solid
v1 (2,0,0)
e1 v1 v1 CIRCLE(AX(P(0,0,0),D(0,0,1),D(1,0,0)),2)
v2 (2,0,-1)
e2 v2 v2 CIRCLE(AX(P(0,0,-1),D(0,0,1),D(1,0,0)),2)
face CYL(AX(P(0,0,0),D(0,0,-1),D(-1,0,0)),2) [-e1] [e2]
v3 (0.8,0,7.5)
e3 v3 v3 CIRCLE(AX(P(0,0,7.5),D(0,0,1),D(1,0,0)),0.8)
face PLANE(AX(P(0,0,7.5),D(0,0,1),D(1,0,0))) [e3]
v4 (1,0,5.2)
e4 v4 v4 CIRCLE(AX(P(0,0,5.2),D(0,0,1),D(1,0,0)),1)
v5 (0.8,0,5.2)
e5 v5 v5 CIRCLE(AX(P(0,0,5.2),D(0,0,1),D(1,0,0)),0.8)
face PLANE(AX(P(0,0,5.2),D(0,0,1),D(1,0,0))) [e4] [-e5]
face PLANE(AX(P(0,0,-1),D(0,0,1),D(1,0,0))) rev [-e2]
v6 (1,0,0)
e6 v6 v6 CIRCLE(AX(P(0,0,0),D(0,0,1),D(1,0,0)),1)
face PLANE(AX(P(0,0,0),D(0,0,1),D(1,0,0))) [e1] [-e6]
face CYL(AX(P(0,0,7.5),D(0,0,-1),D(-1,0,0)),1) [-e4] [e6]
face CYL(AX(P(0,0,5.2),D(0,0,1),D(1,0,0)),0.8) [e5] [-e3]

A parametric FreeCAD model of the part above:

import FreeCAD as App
import Part
import Sketcher

V = App.Vector

doc = App.newDocument("Part")
body = doc.addObject("PartDesign::Body", "Body")

sketch1 = doc.addObject("Sketcher::SketchObject", "Sketch")
body.addObject(sketch1)
sketch1.AttachmentSupport = (doc.XY_Plane, [""])
sketch1.MapMode = "FlatFace"
sketch1.AttachmentOffset = App.Placement(V(0, 0, -1), App.Rotation())
sketch1.addGeometry(Part.Circle(V(0, 0, 0), V(0, 0, 1), 2), False)
sketch1.addConstraint(Sketcher.Constraint("Coincident", 0, 3, -1, 1))
sketch1.addConstraint(Sketcher.Constraint("Diameter", 0, 4.0))
pad1 = doc.addObject("PartDesign::Pad", "Pad")
body.addObject(pad1)
pad1.Profile = sketch1
pad1.Length = 1

sketch2 = doc.addObject("Sketcher::SketchObject", "Sketch001")
body.addObject(sketch2)
sketch2.AttachmentSupport = (doc.XY_Plane, [""])
sketch2.MapMode = "FlatFace"
sketch2.addGeometry(Part.Circle(V(0, 0, 0), V(0, 0, 1), 1), False)
sketch2.addConstraint(Sketcher.Constraint("Coincident", 0, 3, -1, 1))
sketch2.addConstraint(Sketcher.Constraint("Diameter", 0, 2.0))
pad2 = doc.addObject("PartDesign::Pad", "Pad001")
body.addObject(pad2)
pad2.Profile = sketch2
pad2.Length = 7.5

sketch3 = doc.addObject("Sketcher::SketchObject", "Sketch002")
body.addObject(sketch3)
sketch3.AttachmentSupport = (doc.XY_Plane, [""])
sketch3.MapMode = "FlatFace"
sketch3.AttachmentOffset = App.Placement(V(0, 0, 7.5), App.Rotation())
sketch3.addGeometry(Part.Circle(V(0, 0, 0), V(0, 0, 1), 1), False)
sketch3.addGeometry(Part.Circle(V(0, 0, 0), V(0, 0, 1), 0.8), False)
sketch3.addConstraint(Sketcher.Constraint("Coincident", 0, 3, -1, 1))
sketch3.addConstraint(Sketcher.Constraint("Coincident", 1, 3, -1, 1))
sketch3.addConstraint(Sketcher.Constraint("Diameter", 1, 1.6))
sketch3.addConstraint(Sketcher.Constraint("Diameter", 0, 2.02))
pocket1 = doc.addObject("PartDesign::Pocket", "Pocket")
body.addObject(pocket1)
pocket1.Profile = sketch3
pocket1.Length = 2.3

doc.recompute()
